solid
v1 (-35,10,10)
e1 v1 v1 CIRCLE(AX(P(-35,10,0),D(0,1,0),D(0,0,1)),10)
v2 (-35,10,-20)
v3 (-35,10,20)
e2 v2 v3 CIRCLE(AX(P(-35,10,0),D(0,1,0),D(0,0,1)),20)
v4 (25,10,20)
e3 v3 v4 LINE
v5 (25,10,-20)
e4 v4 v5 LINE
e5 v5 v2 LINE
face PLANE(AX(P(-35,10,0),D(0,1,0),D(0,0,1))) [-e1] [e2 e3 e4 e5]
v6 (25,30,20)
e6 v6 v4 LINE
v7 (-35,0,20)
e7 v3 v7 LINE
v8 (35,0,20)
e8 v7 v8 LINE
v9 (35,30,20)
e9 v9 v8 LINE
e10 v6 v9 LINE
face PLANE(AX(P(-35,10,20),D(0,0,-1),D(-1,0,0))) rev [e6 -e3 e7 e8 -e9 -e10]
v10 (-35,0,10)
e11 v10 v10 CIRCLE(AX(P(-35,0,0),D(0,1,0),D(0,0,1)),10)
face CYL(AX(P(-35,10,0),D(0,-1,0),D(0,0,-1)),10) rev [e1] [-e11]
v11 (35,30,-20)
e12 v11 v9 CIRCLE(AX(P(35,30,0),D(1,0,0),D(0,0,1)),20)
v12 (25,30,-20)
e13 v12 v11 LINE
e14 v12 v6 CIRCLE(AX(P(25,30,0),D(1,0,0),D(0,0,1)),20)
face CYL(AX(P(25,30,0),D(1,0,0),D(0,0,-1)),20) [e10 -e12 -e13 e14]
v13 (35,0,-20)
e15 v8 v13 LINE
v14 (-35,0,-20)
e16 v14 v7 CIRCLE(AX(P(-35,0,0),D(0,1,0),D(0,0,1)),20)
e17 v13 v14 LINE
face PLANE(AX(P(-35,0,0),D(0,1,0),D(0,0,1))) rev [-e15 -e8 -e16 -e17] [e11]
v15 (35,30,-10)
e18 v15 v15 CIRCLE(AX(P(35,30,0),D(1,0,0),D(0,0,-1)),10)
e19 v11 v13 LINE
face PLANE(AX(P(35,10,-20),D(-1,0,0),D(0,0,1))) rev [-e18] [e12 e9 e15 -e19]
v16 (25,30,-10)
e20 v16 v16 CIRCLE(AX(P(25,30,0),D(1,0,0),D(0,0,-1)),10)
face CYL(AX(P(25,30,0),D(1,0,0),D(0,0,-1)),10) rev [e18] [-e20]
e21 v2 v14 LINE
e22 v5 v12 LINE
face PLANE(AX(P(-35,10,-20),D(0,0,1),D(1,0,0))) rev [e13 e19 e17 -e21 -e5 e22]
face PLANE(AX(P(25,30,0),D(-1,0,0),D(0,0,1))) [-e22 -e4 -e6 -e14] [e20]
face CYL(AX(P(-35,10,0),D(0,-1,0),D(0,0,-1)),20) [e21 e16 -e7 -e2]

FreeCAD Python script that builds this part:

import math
import FreeCAD as App
import Part
import Sketcher

V = App.Vector
Q = App.Units.Quantity

doc = App.newDocument("Part")
body = doc.addObject("PartDesign::Body", "Body")

# Sketch on XZ plane
sketch1 = body.newObject("Sketcher::SketchObject", "Sketch")
sketch1.AttachmentSupport = (doc.getObject("XZ_Plane"), [""])
sketch1.MapMode = "FlatFace"
sketch1.addGeometry(Part.LineSegment(V(35, -20, 0), V(-35, -20, 0)), False)
sketch1.addGeometry(Part.ArcOfCircle(Part.Circle(V(-35, 0, 0), V(0, 0, 1), 20), math.radians(90), math.radians(270)), False)
sketch1.addGeometry(Part.LineSegment(V(-35, 20, 0), V(35, 20, 0)), False)
sketch1.addGeometry(Part.LineSegment(V(35, 20, 0), V(35, -20, 0)), False)
sketch1.addGeometry(Part.Circle(V(-35, 0, 0), V(0, 0, 1), 10), False)
sketch1.addConstraint(Sketcher.Constraint("Tangent", 0, 2, 1, 2))
sketch1.addConstraint(Sketcher.Constraint("Tangent", 1, 1, 2, 1))
sketch1.addConstraint(Sketcher.Constraint("Coincident", 2, 2, 3, 1))
sketch1.addConstraint(Sketcher.Constraint("Coincident", 3, 2, 0, 1))
sketch1.addConstraint(Sketcher.Constraint("Horizontal", 0))
sketch1.addConstraint(Sketcher.Constraint("Horizontal", 2))
sketch1.addConstraint(Sketcher.Constraint("Vertical", 3))
sketch1.addConstraint(Sketcher.Constraint("Coincident", 4, 3, 1, 3))
sketch1.addConstraint(Sketcher.Constraint("Symmetric", 0, 2, 2, 2, -1, 1))
sketch1.addConstraint(Sketcher.Constraint("Diameter", 4, Q("20 mm")))
sketch1.addConstraint(Sketcher.Constraint("Radius", 1, Q("20 mm")))
sketch1.addConstraint(Sketcher.Constraint("DistanceX", 0, 2, 0, 1, Q("70 mm")))
pad1 = body.newObject("PartDesign::Pad", "Pad")
pad1.Profile = sketch1
pad1.Length = 10
pad1.Reversed = True

# Sketch on YZ plane
sketch2 = body.newObject("Sketcher::SketchObject", "Sketch001")
sketch2.AttachmentSupport = (doc.getObject("YZ_Plane"), [""])
sketch2.MapMode = "FlatFace"
sketch2.AttachmentOffset = App.Placement(V(0, 0, 35), App.Rotation())
sketch2.addGeometry(Part.LineSegment(V(10, 20, 0), V(10, -20, 0)), False)
sketch2.addGeometry(Part.LineSegment(V(10, -20, 0), V(30, -20, 0)), False)
sketch2.addGeometry(Part.ArcOfCircle(Part.Circle(V(30, 0, 0), V(0, 0, 1), 20), math.radians(-90), math.radians(90)), False)
sketch2.addGeometry(Part.LineSegment(V(30, 20, 0), V(10, 20, 0)), False)
sketch2.addGeometry(Part.Circle(V(30, 0, 0), V(0, 0, 1), 10), False)
sketch2.addConstraint(Sketcher.Constraint("Coincident", 0, 2, 1, 1))
sketch2.addConstraint(Sketcher.Constraint("Tangent", 1, 2, 2, 1))
sketch2.addConstraint(Sketcher.Constraint("Tangent", 2, 2, 3, 1))
sketch2.addConstraint(Sketcher.Constraint("Coincident", 3, 2, 0, 1))
sketch2.addConstraint(Sketcher.Constraint("Vertical", 0))
sketch2.addConstraint(Sketcher.Constraint("Horizontal", 1))
sketch2.addConstraint(Sketcher.Constraint("Horizontal", 3))
sketch2.addConstraint(Sketcher.Constraint("Coincident", 4, 3, 2, 3))
sketch2.addConstraint(Sketcher.Constraint("PointOnObject", 2, 3, -1))
sketch2.addConstraint(Sketcher.Constraint("Diameter", 4, Q("20 mm")))
sketch2.addConstraint(Sketcher.Constraint("Radius", 2, Q("20 mm")))
sketch2.addConstraint(Sketcher.Constraint("DistanceX", 1, 1, 1, 2, Q("20 mm")))
sketch2.addConstraint(Sketcher.Constraint("DistanceX", -1, 1, 2, 3, Q("30 mm")))
pad2 = body.newObject("PartDesign::Pad", "Pad001")
pad2.Profile = sketch2
pad2.Length = 10
pad2.Reversed = True

doc.recompute()
